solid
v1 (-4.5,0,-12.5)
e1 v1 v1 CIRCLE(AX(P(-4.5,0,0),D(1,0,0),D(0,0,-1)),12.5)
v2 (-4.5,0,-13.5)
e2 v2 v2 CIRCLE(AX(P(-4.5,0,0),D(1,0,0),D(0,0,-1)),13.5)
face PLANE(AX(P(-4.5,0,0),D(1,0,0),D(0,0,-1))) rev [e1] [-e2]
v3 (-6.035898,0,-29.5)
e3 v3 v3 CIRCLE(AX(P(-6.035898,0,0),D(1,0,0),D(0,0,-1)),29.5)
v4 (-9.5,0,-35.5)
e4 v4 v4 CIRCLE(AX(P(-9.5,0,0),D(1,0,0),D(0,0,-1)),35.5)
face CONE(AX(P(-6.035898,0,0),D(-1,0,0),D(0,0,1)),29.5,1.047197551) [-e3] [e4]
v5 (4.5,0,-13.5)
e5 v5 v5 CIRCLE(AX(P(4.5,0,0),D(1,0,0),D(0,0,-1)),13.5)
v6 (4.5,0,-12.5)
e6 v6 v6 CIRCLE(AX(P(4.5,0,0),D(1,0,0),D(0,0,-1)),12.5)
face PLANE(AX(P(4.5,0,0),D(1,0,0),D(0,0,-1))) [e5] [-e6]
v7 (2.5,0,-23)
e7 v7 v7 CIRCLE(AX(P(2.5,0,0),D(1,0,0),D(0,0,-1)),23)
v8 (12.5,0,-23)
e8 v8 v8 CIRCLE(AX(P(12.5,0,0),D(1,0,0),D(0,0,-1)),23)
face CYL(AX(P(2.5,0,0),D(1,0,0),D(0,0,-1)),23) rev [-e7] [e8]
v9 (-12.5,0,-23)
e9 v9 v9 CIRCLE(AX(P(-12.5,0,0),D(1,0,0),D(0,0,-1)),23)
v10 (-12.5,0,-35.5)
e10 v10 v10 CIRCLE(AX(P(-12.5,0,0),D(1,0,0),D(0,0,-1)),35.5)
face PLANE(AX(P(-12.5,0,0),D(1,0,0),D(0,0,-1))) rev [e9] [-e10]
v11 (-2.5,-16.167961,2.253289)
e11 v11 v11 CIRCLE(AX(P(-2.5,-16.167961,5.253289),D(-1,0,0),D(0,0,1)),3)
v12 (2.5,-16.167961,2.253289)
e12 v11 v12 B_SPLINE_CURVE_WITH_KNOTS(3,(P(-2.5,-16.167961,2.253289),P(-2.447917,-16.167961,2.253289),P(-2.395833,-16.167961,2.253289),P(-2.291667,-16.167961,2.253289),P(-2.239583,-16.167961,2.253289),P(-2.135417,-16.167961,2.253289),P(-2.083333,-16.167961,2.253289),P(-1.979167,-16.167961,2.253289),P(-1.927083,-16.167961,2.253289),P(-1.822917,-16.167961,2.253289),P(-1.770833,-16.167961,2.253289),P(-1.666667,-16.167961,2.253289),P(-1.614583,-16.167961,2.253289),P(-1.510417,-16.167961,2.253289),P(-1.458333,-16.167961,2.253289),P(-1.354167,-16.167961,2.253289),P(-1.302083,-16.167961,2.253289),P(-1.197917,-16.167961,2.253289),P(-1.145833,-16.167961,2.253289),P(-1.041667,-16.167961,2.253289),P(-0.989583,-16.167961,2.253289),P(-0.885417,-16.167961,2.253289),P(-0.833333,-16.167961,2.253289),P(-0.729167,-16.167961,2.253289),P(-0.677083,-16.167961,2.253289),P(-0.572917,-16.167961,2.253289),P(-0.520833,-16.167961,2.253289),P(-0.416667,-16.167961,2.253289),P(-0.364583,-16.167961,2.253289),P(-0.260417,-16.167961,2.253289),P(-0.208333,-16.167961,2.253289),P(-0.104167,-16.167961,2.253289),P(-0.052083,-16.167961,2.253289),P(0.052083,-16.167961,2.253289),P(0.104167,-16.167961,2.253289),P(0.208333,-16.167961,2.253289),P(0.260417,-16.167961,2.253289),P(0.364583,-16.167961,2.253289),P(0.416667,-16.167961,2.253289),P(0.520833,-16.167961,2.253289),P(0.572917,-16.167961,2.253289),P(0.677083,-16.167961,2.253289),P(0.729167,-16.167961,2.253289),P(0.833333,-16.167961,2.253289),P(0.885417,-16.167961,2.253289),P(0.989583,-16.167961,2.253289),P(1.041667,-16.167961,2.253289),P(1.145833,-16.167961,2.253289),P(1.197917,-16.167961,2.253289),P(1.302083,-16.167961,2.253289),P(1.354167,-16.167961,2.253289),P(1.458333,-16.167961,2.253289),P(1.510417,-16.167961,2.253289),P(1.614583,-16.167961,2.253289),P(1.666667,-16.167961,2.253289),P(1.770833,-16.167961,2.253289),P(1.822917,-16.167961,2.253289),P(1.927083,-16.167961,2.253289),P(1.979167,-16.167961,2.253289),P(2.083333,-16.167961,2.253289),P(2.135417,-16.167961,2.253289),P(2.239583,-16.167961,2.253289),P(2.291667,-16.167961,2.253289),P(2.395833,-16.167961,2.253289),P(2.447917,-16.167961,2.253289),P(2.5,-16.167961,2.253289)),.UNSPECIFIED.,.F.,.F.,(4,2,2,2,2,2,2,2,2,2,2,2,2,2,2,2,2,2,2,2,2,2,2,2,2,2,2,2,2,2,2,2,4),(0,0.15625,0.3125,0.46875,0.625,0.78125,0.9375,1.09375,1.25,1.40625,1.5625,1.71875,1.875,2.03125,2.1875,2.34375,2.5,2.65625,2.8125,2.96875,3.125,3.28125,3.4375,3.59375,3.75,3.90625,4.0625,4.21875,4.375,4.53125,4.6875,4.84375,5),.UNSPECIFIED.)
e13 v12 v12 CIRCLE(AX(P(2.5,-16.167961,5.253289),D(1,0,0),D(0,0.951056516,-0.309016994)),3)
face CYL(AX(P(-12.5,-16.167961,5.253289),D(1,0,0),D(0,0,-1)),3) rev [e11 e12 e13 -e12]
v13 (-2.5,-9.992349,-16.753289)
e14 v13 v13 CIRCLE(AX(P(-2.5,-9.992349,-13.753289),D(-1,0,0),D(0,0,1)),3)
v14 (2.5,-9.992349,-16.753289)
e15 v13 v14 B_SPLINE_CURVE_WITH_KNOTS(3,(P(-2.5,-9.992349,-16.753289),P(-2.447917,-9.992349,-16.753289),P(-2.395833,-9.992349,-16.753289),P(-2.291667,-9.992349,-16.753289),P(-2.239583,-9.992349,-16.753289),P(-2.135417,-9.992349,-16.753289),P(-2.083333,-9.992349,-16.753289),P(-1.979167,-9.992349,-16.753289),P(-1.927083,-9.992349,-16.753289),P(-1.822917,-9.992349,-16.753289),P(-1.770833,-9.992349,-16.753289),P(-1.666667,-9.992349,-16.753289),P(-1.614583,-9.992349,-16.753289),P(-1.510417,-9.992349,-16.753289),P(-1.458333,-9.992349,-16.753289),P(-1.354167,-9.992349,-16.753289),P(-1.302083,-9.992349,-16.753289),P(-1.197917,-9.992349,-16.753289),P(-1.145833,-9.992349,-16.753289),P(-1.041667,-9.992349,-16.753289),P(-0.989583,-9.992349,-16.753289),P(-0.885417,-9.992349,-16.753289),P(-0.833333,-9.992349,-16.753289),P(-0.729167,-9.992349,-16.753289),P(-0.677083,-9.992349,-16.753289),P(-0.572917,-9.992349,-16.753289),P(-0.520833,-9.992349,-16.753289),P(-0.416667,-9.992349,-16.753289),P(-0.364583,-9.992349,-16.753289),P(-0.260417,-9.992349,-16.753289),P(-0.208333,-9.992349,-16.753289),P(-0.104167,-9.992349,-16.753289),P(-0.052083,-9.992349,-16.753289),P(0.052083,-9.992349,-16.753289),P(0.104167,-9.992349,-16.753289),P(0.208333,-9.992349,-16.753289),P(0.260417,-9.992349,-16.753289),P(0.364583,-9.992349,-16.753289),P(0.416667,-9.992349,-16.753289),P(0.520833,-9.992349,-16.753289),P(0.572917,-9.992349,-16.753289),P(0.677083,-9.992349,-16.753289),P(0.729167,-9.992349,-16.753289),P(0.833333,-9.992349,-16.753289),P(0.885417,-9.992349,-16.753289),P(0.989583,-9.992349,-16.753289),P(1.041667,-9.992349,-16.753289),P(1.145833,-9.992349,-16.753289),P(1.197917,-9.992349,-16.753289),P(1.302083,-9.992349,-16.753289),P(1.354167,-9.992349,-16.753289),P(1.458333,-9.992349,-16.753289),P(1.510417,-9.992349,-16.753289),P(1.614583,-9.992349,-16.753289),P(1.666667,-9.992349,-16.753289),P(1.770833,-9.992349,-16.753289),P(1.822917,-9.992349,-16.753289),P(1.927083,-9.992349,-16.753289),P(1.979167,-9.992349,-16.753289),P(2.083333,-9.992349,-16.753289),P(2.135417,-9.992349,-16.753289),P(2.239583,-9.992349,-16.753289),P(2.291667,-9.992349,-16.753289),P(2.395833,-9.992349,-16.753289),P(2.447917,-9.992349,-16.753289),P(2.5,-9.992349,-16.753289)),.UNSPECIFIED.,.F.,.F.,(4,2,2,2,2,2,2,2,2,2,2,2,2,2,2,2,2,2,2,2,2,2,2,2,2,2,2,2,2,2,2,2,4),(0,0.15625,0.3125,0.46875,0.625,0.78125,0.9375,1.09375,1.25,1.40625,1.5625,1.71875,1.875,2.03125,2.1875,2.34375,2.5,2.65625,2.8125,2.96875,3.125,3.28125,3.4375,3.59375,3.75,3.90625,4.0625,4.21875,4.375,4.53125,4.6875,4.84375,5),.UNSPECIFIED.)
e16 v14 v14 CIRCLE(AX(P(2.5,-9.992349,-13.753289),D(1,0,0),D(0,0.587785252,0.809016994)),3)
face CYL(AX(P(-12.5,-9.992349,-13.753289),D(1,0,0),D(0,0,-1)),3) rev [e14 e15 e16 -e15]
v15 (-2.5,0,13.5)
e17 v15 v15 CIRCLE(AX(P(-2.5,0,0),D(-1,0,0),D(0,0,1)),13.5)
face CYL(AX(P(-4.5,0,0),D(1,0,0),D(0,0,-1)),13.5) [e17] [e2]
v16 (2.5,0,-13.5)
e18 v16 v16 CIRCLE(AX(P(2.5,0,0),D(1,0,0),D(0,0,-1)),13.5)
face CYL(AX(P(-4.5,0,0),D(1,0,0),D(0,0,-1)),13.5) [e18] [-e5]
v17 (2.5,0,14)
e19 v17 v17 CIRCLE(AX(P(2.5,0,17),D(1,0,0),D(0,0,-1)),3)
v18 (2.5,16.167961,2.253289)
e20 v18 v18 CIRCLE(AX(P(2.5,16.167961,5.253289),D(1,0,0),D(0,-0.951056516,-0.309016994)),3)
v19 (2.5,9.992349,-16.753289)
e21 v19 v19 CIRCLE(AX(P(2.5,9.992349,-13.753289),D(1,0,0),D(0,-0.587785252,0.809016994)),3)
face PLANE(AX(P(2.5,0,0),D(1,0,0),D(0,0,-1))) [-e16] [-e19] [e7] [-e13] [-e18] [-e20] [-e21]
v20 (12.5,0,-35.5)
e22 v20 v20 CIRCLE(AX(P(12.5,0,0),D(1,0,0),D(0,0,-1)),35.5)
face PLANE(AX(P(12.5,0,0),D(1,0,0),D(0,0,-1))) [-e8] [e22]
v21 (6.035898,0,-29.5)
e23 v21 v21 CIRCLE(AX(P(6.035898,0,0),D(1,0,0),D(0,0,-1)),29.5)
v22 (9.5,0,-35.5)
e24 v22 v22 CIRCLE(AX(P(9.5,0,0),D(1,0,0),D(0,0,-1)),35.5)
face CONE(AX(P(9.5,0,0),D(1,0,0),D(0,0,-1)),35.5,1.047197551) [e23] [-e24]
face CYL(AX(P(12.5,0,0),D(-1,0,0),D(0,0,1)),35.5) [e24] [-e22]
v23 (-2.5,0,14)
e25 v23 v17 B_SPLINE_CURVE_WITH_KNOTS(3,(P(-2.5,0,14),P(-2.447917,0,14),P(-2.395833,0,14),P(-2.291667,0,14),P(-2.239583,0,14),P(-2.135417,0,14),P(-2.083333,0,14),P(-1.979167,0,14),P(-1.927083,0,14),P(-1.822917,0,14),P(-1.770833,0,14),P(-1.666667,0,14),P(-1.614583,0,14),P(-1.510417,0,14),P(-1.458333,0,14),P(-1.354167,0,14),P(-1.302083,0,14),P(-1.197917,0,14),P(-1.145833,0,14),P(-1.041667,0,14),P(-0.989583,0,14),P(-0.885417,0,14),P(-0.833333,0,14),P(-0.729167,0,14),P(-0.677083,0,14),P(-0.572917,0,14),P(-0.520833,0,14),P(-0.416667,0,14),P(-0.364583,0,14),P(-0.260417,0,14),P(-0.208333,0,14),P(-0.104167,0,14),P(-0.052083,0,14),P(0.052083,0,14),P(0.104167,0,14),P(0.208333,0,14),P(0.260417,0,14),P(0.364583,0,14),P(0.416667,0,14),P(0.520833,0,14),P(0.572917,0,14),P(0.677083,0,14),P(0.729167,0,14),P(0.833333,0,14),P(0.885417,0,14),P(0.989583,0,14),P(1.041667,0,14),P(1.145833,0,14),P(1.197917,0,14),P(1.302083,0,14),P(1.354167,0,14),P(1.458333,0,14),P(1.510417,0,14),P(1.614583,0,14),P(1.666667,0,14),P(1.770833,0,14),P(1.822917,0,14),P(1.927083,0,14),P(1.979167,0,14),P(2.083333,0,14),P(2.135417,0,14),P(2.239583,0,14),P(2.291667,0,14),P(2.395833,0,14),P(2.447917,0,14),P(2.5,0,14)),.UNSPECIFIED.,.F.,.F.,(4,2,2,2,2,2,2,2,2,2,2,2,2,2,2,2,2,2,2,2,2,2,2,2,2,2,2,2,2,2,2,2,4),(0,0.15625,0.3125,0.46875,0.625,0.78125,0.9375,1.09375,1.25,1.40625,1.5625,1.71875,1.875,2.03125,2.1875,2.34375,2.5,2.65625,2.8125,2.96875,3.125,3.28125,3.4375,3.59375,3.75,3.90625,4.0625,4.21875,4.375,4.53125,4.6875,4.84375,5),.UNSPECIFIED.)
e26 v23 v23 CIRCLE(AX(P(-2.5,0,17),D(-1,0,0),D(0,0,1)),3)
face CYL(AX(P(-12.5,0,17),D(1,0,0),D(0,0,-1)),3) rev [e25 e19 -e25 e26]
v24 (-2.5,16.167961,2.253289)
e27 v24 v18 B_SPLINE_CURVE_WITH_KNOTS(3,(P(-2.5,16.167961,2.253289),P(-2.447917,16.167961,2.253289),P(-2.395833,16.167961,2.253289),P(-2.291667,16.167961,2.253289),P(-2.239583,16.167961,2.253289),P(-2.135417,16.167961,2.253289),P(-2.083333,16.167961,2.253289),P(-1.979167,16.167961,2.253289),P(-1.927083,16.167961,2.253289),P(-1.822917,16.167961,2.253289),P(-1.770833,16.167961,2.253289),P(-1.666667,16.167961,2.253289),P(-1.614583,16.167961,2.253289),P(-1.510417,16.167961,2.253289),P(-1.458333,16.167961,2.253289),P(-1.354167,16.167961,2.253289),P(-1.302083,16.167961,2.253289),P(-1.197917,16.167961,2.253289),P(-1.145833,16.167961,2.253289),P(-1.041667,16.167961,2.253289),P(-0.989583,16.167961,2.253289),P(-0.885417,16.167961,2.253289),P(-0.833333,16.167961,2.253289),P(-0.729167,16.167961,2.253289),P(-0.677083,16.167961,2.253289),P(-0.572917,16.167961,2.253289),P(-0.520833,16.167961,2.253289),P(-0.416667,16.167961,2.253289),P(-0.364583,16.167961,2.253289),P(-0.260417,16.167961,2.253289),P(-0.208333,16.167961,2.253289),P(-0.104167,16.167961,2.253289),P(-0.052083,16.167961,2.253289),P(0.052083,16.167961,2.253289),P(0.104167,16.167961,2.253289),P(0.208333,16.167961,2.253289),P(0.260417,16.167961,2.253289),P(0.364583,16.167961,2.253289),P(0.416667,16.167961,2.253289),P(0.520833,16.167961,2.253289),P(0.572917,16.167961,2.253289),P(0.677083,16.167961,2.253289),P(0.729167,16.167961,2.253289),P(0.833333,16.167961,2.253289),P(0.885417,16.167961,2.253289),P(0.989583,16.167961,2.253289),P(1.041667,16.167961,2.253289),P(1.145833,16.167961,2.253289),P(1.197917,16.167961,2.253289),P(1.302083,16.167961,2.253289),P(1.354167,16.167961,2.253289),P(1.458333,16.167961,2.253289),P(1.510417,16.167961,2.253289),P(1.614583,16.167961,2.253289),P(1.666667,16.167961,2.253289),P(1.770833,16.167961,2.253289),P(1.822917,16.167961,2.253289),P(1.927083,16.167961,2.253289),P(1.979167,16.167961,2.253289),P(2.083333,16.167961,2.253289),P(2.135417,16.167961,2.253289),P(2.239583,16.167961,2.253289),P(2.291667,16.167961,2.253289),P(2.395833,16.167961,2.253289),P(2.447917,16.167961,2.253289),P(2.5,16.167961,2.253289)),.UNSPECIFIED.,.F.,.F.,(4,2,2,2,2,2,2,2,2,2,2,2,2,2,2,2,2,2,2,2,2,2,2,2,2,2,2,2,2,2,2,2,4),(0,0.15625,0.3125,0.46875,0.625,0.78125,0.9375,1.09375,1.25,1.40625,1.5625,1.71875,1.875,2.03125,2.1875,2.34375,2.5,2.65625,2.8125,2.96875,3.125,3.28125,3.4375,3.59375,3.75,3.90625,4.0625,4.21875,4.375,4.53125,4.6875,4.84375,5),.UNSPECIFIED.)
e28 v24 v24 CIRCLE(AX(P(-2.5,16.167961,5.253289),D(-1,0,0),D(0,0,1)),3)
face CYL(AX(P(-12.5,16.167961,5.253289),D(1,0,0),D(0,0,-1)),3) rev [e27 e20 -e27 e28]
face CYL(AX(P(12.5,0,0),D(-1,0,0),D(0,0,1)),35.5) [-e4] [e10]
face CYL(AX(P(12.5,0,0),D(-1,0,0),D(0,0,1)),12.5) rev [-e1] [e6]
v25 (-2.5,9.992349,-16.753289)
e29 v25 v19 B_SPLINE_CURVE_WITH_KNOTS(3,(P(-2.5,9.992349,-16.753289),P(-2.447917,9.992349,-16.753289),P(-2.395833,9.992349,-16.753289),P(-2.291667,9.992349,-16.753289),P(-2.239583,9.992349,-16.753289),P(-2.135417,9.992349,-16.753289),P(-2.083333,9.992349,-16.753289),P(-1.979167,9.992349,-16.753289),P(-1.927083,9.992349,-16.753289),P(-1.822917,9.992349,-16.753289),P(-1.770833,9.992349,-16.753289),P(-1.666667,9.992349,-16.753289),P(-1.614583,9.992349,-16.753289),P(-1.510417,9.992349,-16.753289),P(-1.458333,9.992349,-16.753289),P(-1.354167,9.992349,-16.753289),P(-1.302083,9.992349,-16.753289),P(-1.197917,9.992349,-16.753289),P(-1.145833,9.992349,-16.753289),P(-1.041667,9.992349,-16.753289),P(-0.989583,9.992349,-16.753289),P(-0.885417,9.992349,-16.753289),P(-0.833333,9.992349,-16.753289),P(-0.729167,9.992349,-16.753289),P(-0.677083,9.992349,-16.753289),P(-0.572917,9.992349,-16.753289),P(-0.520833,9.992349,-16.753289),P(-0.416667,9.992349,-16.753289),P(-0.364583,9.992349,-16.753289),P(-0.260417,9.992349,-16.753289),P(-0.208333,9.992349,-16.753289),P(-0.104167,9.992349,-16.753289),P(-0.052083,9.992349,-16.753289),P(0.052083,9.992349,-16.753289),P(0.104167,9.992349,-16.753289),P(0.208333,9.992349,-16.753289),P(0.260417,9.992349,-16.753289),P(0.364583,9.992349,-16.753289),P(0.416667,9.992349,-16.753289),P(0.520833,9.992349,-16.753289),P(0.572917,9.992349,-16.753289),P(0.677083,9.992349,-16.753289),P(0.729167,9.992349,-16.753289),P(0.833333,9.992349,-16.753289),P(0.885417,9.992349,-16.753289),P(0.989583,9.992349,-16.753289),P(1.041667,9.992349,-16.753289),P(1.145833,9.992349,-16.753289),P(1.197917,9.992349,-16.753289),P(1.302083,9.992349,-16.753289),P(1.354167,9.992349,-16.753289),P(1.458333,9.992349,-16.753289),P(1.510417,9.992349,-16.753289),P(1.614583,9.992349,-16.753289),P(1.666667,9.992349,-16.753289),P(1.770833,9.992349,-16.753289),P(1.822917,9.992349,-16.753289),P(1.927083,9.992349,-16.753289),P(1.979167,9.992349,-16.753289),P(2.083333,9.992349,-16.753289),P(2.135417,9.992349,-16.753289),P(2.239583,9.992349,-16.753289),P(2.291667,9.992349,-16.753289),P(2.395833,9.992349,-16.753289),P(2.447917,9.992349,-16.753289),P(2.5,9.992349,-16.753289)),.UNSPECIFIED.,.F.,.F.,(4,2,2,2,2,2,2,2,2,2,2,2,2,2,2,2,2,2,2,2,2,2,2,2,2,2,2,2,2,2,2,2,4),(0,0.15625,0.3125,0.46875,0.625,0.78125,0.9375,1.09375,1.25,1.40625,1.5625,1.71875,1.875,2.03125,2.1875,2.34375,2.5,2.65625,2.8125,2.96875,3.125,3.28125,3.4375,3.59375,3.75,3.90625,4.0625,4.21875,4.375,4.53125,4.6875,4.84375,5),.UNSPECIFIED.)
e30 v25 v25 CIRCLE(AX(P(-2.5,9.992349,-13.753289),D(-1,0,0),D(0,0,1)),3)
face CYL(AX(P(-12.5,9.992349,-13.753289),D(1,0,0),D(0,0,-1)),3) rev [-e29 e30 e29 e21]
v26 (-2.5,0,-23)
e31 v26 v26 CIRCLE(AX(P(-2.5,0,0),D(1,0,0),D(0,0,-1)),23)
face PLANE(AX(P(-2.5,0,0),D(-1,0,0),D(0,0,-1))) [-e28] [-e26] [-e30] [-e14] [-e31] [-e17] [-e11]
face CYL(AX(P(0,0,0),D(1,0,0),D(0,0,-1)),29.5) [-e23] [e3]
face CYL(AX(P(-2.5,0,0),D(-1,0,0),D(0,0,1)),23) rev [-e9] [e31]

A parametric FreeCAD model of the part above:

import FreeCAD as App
import Part
import Sketcher
from FreeCAD import Vector
Q = App.Units.Quantity


def add_polygon(sketch, points):
    """Adds a closed chain of lines whose ends are joined by coincident constraints."""
    first, n = sketch.GeometryCount, len(points)
    for a, b in zip(points, points[1:] + points[:1]):
        sketch.addGeometry(Part.LineSegment(App.Vector(*a, 0), App.Vector(*b, 0)), False)
    for i in range(n):
        sketch.addConstraint(Sketcher.Constraint("Coincident", first + i, 2, first + (i + 1) % n, 1))

doc = App.newDocument("Part")
body = doc.addObject("PartDesign::Body", "Body")

sketch1 = doc.addObject("Sketcher::SketchObject", "Sketch")
body.addObject(sketch1)
sketch1.AttachmentSupport = (doc.YZ_Plane, [""])
sketch1.MapMode = "FlatFace"
sketch1.addGeometry([
    Part.Circle(Vector(0, 0, 0), Vector(0, 0, 1), 35.5),
    Part.Circle(Vector(0, 0, 0), Vector(0, 0, 1), 12.5),
], False)
sketch1.addConstraint([
    Sketcher.Constraint("Coincident", 0, 3, -1, 1),
    Sketcher.Constraint("Coincident", 1, 3, -1, 1),
    Sketcher.Constraint("Diameter", 0, 71.0),
    Sketcher.Constraint("Diameter", 1, 25.0),
])
pad1 = doc.addObject("PartDesign::Pad", "Pad")
body.addObject(pad1)
pad1.Profile = sketch1
pad1.Length = 25
pad1.Midplane = True

sketch2 = doc.addObject("Sketcher::SketchObject", "Sketch001")
body.addObject(sketch2)
sketch2.AttachmentSupport = (doc.YZ_Plane, [""])
sketch2.MapMode = "FlatFace"
sketch2.AttachmentOffset = App.Placement(Vector(0, 0, 12.5), App.Rotation())
sketch2.addGeometry(Part.Circle(Vector(0, 0, 0), Vector(0, 0, 1), 23), False)
sketch2.addConstraint([
    Sketcher.Constraint("Coincident", 0, 3, -1, 1),
    Sketcher.Constraint("Diameter", 0, 46.0),
])
pocket1 = doc.addObject("PartDesign::Pocket", "Pocket")
body.addObject(pocket1)
pocket1.Profile = sketch2
pocket1.Length = 10
doc.recompute()

mirrored = doc.addObject("PartDesign::Mirrored", "Mirrored")
body.addObject(mirrored)
mirrored.Originals = [pocket1]
mirrored.MirrorPlane = (doc.YZ_Plane, [""])
body.Tip = mirrored

sketch3 = doc.addObject("Sketcher::SketchObject", "Sketch002")
body.addObject(sketch3)
sketch3.AttachmentSupport = (doc.YZ_Plane, [""])
sketch3.MapMode = "FlatFace"
sketch3.AttachmentOffset = App.Placement(Vector(0, 0, 2.5), App.Rotation())
sketch3.addGeometry(Part.Circle(Vector(0, 17, 0), Vector(0, 0, 1), 3), False)
sketch3.addConstraint([
    Sketcher.Constraint("PointOnObject", 0, 3, -2),
    Sketcher.Constraint("Diameter", 0, 6.0),
    Sketcher.Constraint("DistanceY", -1, 1, 0, 3, 17.0),
])
pocket2 = doc.addObject("PartDesign::Pocket", "Pocket001")
body.addObject(pocket2)
pocket2.Profile = sketch3
pocket2.Type = "ThroughAll"
doc.recompute()

polarpattern = doc.addObject("PartDesign::PolarPattern", "PolarPattern")
body.addObject(polarpattern)
polarpattern.Originals = [pocket2]
polarpattern.Axis = (doc.X_Axis, [""])
polarpattern.Angle = 360
polarpattern.Occurrences = 5
body.Tip = polarpattern

sketch4 = doc.addObject("Sketcher::SketchObject", "Sketch003")
body.addObject(sketch4)
sketch4.AttachmentSupport = (doc.YZ_Plane, [""])
sketch4.MapMode = "FlatFace"
sketch4.AttachmentOffset = App.Placement(Vector(0, 0, 2.5), App.Rotation())
sketch4.addGeometry([
    Part.Circle(Vector(0, 0, 0), Vector(0, 0, 1), 13.5),
    Part.Circle(Vector(0, 0, 0), Vector(0, 0, 1), 12.5),
], False)
sketch4.addConstraint([
    Sketcher.Constraint("Coincident", 0, 3, -1, 1),
    Sketcher.Constraint("Coincident", 1, 3, -1, 1),
    Sketcher.Constraint("Diameter", 0, 27.0),
    Sketcher.Constraint("Diameter", 1, 25.0),
])
pad2 = doc.addObject("PartDesign::Pad", "Pad001")
body.addObject(pad2)
pad2.Profile = sketch4
pad2.Type = "TwoLengths"
pad2.Length = 2
pad2.Length2 = 7

sketch5 = doc.addObject("Sketcher::SketchObject", "Sketch004")
body.addObject(sketch5)
sketch5.AttachmentSupport = (doc.XY_Plane, [""])
sketch5.MapMode = "FlatFace"
add_polygon(sketch5, [(-6.035898, -29.5), (-9.5, -35.5), (9.5, -35.5), (6.035898, -29.5)])
sketch5.addConstraint([
    Sketcher.Constraint("Horizontal", 1),
    Sketcher.Constraint("Horizontal", 3),
    Sketcher.Constraint("Equal", 0, 2),
    Sketcher.Constraint("DistanceX", 1, 1, 1, 2, 19.0),
    Sketcher.Constraint("Angle", 0, Q("-120 deg")),
    Sketcher.Constraint("DistanceY", 1, 2, 2, 2, 6.0),
    Sketcher.Constraint("DistanceX", 0, 2, -1, 1, 9.5),
    Sketcher.Constraint("DistanceY", 0, 2, -1, 1, 35.5),
])
groove = doc.addObject("PartDesign::Groove", "Groove")
body.addObject(groove)
groove.Profile = sketch5
groove.ReferenceAxis = (sketch5, ["H_Axis"])
groove.Angle = 360

doc.recompute()
